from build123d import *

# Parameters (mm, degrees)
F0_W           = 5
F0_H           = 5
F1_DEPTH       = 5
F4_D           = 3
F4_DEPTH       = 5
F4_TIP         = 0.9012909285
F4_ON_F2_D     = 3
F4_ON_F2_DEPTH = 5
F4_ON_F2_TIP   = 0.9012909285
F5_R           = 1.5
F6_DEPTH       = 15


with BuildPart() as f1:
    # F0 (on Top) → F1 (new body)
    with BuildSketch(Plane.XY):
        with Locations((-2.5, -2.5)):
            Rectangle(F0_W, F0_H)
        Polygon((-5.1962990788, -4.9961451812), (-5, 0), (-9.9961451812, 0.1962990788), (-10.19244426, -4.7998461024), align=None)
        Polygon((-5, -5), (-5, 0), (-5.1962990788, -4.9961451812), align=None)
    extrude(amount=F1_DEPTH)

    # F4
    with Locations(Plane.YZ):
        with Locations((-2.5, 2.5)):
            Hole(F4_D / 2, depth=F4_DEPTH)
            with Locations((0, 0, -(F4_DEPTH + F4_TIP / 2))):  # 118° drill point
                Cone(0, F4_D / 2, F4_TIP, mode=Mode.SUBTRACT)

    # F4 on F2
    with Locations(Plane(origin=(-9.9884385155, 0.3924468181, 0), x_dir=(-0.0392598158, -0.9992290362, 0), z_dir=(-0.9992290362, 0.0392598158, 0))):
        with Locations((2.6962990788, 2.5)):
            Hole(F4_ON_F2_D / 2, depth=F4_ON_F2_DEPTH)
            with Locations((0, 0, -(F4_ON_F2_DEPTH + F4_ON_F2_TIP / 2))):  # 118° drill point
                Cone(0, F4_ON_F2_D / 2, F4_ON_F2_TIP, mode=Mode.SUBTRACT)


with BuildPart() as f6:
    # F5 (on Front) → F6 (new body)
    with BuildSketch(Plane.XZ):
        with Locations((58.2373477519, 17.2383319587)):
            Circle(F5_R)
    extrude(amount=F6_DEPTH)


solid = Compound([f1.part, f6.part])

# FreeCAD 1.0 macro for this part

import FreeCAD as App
import Part
import Sketcher
from FreeCAD import Vector
Q = App.Units.Quantity


def add_polygon(sketch, points):
    """Adds a closed chain of lines whose ends are joined by coincident constraints."""
    first, n = sketch.GeometryCount, len(points)
    for a, b in zip(points, points[1:] + points[:1]):
        sketch.addGeometry(Part.LineSegment(App.Vector(*a, 0), App.Vector(*b, 0)), False)
    for i in range(n):
        sketch.addConstraint(Sketcher.Constraint("Coincident", first + i, 2, first + (i + 1) % n, 1))

doc = App.newDocument("Part")
body = doc.addObject("PartDesign::Body", "Body")

# Sketch on XY plane
sketch1 = body.newObject("Sketcher::SketchObject", "Sketch")
sketch1.AttachmentSupport = (doc.getObject("XY_Plane"), [""])
sketch1.MapMode = "FlatFace"
add_polygon(sketch1, [(-5, -5), (0, -5), (0, 0), (-5, 0), (-10, 0.2), (-10.19, -4.8), (-5.2, -5)])  # lines 0-6
sketch1.addConstraint([
    Sketcher.Constraint("Horizontal", 0),
    Sketcher.Constraint("Vertical", 1),
    Sketcher.Constraint("Horizontal", 2),
    Sketcher.Constraint("Coincident", 1, 2, -1, 1),
    Sketcher.Constraint("Perpendicular", 3, 4),
    Sketcher.Constraint("Perpendicular", 4, 5),
    Sketcher.Constraint("Vertical", 2, 2, 6, 2),
    Sketcher.Constraint("Equal", 2, 1),
    Sketcher.Constraint("Equal", 3, 4),
    Sketcher.Constraint("Equal", 4, 5),
    Sketcher.Constraint("DistanceX", 0, 1, 0, 2, Q("5 mm")),
    Sketcher.Constraint("Distance", 3, Q("5 mm")),
    Sketcher.Constraint("Angle", 3, Q("177.75 deg")),
])
pad1 = body.newObject("PartDesign::Pad", "Pad")
pad1.Profile = sketch1
pad1.Length = 5

# Sketch on YZ plane
sketch2 = body.newObject("Sketcher::SketchObject", "Sketch001")
sketch2.AttachmentSupport = (doc.getObject("YZ_Plane"), [""])
sketch2.MapMode = "FlatFace"
sketch2.addGeometry(Part.Circle(Vector(-2.5, 2.5, 0), Vector(0, 0, 1), 1.5), False)
sketch2.addConstraint([
    Sketcher.Constraint("Diameter", 0, Q("3 mm")),
    Sketcher.Constraint("DistanceX", 0, 3, -1, 1, Q("2.5 mm")),
    Sketcher.Constraint("DistanceY", -1, 1, 0, 3, Q("2.5 mm")),
])
doc.recompute()
hole = body.newObject("PartDesign::Hole", "Hole")
hole.Profile = sketch2
hole.ThreadType = "None"
hole.Diameter = 3
hole.DepthType = "Dimension"
hole.Depth = 5
hole.DrillPoint = "Angled"
hole.DrillPointAngle = 118

# Sketch on an angled plane
sketch3 = body.newObject("Sketcher::SketchObject", "Sketch002")
sketch3.Placement = App.Placement(Vector(-9.988439, 0.392447, 0), App.Rotation(Vector(-0.039259816, -0.999229036, 0), Vector(0, 0, 1), Vector(-0.999229036, 0.039259816, 0), "ZXY"))
sketch3.addGeometry(Part.Circle(Vector(2.7, 2.5, 0), Vector(0, 0, 1), 1.5), False)
sketch3.addConstraint([
    Sketcher.Constraint("Diameter", 0, Q("3 mm")),
    Sketcher.Constraint("DistanceY", -1, 1, 0, 3, Q("2.5 mm")),
    Sketcher.Constraint("DistanceX", -1, 1, 0, 3, Q("2.696299 mm")),
])
doc.recompute()
hole2 = body.newObject("PartDesign::Hole", "Hole001")
hole2.Profile = sketch3
hole2.ThreadType = "None"
hole2.Diameter = 3
hole2.DepthType = "Dimension"
hole2.Depth = 5
hole2.DrillPoint = "Angled"
hole2.DrillPointAngle = 118
body2 = doc.addObject("PartDesign::Body", "Body001")

# Sketch on XZ plane
sketch4 = body2.newObject("Sketcher::SketchObject", "Sketch003")
sketch4.AttachmentSupport = (doc.getObject("XZ_Plane001"), [""])
sketch4.MapMode = "FlatFace"
sketch4.addGeometry(Part.Circle(Vector(58.2, 17.2, 0), Vector(0, 0, 1), 1.5), False)
sketch4.addConstraint([
    Sketcher.Constraint("Diameter", 0, Q("3 mm")),
    Sketcher.Constraint("DistanceY", -1, 1, 0, 3, Q("17.238332 mm")),
    Sketcher.Constraint("DistanceX", -1, 1, 0, 3, Q("58.237348 mm")),
])
pad2 = body2.newObject("PartDesign::Pad", "Pad001")
pad2.Profile = sketch4
pad2.Length = 15

doc.recompute()
